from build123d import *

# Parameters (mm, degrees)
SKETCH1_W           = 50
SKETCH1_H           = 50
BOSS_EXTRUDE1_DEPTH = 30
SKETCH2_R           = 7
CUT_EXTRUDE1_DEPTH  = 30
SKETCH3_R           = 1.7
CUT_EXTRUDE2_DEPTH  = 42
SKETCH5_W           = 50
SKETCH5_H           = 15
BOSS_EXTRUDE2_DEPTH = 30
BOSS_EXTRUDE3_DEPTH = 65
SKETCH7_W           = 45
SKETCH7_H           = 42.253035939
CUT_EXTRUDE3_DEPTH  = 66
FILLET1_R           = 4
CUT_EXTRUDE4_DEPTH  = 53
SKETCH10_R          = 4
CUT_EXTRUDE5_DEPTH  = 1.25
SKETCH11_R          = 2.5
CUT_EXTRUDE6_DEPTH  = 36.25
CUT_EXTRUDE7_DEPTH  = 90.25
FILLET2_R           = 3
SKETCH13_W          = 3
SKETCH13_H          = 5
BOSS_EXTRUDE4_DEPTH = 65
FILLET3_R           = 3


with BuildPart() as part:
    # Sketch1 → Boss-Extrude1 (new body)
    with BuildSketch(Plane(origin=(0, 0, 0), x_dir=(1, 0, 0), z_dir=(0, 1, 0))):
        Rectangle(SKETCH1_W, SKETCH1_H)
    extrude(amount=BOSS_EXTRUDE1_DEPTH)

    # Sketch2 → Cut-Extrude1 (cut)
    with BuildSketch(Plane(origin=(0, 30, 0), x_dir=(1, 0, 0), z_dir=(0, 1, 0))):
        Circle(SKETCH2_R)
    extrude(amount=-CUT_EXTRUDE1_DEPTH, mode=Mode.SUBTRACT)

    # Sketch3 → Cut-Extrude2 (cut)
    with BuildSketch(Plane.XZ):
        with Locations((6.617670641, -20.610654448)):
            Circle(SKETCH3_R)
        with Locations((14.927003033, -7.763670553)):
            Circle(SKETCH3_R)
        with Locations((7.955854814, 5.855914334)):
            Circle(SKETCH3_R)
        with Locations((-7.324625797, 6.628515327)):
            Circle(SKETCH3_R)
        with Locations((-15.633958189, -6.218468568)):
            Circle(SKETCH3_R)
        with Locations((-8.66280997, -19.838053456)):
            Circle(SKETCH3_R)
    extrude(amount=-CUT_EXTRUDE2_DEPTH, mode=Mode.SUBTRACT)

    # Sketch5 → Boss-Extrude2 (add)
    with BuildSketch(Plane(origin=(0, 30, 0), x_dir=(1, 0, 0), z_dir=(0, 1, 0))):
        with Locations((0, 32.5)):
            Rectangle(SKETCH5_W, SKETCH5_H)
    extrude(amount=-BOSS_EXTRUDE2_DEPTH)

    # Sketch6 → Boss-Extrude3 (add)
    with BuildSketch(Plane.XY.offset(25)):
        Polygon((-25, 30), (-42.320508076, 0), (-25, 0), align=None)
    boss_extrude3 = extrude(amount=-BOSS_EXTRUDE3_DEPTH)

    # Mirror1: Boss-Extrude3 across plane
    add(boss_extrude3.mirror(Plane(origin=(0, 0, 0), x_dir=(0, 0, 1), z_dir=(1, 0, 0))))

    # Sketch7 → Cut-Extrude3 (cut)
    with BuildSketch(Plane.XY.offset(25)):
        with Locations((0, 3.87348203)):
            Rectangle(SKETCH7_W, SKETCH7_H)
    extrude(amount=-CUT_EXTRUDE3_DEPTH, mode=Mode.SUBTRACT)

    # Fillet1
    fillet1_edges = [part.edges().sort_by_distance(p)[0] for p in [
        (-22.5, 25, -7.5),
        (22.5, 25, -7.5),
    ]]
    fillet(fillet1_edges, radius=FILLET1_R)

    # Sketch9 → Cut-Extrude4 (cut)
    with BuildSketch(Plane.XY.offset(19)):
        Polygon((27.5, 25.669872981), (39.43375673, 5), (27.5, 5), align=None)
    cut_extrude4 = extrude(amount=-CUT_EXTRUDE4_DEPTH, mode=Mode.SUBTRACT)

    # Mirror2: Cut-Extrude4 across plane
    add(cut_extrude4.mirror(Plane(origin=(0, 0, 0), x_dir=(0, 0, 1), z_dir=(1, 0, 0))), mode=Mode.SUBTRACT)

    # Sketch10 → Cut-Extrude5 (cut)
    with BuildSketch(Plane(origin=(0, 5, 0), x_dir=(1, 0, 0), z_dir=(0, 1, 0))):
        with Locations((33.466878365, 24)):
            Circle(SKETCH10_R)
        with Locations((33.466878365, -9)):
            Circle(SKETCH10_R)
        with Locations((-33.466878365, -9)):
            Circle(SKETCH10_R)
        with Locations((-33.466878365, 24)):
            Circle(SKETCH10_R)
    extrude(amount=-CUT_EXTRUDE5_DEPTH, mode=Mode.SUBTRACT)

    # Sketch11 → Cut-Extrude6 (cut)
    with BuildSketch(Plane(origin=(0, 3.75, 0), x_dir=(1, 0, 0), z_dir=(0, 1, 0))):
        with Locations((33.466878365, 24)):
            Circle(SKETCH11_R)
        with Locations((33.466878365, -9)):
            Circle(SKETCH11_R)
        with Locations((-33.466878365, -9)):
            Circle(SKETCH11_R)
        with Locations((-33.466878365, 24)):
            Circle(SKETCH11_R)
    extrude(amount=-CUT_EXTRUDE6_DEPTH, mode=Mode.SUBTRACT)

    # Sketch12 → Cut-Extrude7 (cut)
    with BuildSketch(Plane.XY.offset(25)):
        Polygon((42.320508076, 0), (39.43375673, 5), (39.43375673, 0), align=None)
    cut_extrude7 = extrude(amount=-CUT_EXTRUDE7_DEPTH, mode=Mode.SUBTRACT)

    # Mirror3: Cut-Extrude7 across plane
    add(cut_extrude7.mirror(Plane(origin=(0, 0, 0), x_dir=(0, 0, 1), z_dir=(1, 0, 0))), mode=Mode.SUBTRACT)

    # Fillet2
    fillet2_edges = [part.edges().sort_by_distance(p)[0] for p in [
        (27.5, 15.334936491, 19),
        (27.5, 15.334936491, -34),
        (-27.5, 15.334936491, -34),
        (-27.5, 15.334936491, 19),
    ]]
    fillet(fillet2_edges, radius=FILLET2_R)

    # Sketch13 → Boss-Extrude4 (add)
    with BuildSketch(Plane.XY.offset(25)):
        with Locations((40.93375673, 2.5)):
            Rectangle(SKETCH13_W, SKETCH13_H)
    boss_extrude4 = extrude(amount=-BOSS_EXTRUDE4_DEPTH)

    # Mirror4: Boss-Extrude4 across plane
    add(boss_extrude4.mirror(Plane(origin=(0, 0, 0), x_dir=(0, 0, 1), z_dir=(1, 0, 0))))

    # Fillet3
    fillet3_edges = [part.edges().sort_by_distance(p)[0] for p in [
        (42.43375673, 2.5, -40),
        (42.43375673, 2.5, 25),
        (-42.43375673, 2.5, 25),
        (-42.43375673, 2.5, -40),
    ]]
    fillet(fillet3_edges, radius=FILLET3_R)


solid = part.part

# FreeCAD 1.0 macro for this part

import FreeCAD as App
import Part
import Sketcher
from FreeCAD import Vector
Q = App.Units.Quantity


def edges_at(feature, points):
    """Names of the edges that pass closest to the given points."""
    edges = feature.Shape.Edges
    near = lambda p: min(range(len(edges)), key=lambda i: edges[i].distToShape(Part.Vertex(*p))[0])
    return sorted({f"Edge{near(p) + 1}" for p in points})

doc = App.newDocument("Part")
body = doc.addObject("PartDesign::Body", "Body")

sketch1 = doc.addObject("Sketcher::SketchObject", "Sketch")
body.addObject(sketch1)
sketch1.AttachmentSupport = (doc.XZ_Plane, [""])
sketch1.MapMode = "FlatFace"
sketch1.addGeometry([
    Part.LineSegment(Vector(-25, -25, 0), Vector(-25, 25, 0)),
    Part.LineSegment(Vector(-25, 25, 0), Vector(25, 25, 0)),
    Part.LineSegment(Vector(25, 25, 0), Vector(25, -25, 0)),
    Part.LineSegment(Vector(25, -25, 0), Vector(-25, -25, 0)),
], False)
sketch1.addConstraint([
    Sketcher.Constraint("Coincident", 0, 2, 1, 1),
    Sketcher.Constraint("Coincident", 1, 2, 2, 1),
    Sketcher.Constraint("Coincident", 2, 2, 3, 1),
    Sketcher.Constraint("Coincident", 3, 2, 0, 1),
    Sketcher.Constraint("Vertical", 0),
    Sketcher.Constraint("Horizontal", 1),
    Sketcher.Constraint("Vertical", 2),
    Sketcher.Constraint("Horizontal", 3),
    Sketcher.Constraint("Symmetric", 0, 2, 2, 2, -1, 1),
    Sketcher.Constraint("Equal", 3, 0),
    Sketcher.Constraint("DistanceX", 1, 1, 1, 2, 50.0),
])
pad1 = doc.addObject("PartDesign::Pad", "Pad")
body.addObject(pad1)
pad1.Profile = sketch1
pad1.Length = 30
pad1.Reversed = True

sketch2 = doc.addObject("Sketcher::SketchObject", "Sketch001")
body.addObject(sketch2)
sketch2.AttachmentSupport = (doc.XZ_Plane, [""])
sketch2.MapMode = "FlatFace"
sketch2.AttachmentOffset = App.Placement(Vector(0, 0, -30), App.Rotation())
sketch2.addGeometry(Part.Circle(Vector(0, 0, 0), Vector(0, 0, 1), 7), False)
sketch2.addConstraint([
    Sketcher.Constraint("Coincident", 0, 3, -1, 1),
    Sketcher.Constraint("Diameter", 0, 14.0),
])
pocket1 = doc.addObject("PartDesign::Pocket", "Pocket")
body.addObject(pocket1)
pocket1.Profile = sketch2
pocket1.Length = 30
pocket1.Reversed = True

sketch3 = doc.addObject("Sketcher::SketchObject", "Sketch002")
body.addObject(sketch3)
sketch3.AttachmentSupport = (doc.XZ_Plane, [""])
sketch3.MapMode = "FlatFace"
sketch3.addGeometry([
    Part.Circle(Vector(6.617671, -20.610654, 0), Vector(0, 0, 1), 1.7),
    Part.Circle(Vector(14.927003, -7.763671, 0), Vector(0, 0, 1), 1.7),
    Part.Circle(Vector(7.955855, 5.855914, 0), Vector(0, 0, 1), 1.7),
    Part.Circle(Vector(-7.324626, 6.628515, 0), Vector(0, 0, 1), 1.7),
    Part.Circle(Vector(-15.633958, -6.218469, 0), Vector(0, 0, 1), 1.7),
    Part.Circle(Vector(-8.66281, -19.838053, 0), Vector(0, 0, 1), 1.7),
], False)
sketch3.addConstraint([
    Sketcher.Constraint("Equal", 0, 1),
    Sketcher.Constraint("Equal", 1, 2),
    Sketcher.Constraint("Equal", 2, 3),
    Sketcher.Constraint("Equal", 3, 4),
    Sketcher.Constraint("Equal", 4, 5),
    Sketcher.Constraint("Diameter", 0, 3.4),
    Sketcher.Constraint("DistanceY", 2, 3, 3, 3, 0.772601),
    Sketcher.Constraint("DistanceY", 1, 3, 4, 3, 1.545202),
    Sketcher.Constraint("DistanceY", 0, 3, 5, 3, 0.772601),
    Sketcher.Constraint("DistanceX", -1, 1, 0, 3, 6.617671),
    Sketcher.Constraint("DistanceY", 1, 3, -1, 1, 7.763671),
    Sketcher.Constraint("DistanceX", 4, 3, -1, 1, 15.633958),
    Sketcher.Constraint("DistanceX", 5, 3, -1, 1, 8.66281),
    Sketcher.Constraint("DistanceX", 2, 3, 1, 3, 6.971148),
    Sketcher.Constraint("DistanceY", 0, 3, 2, 3, 26.466569),
    Sketcher.Constraint("DistanceX", 3, 3, 2, 3, 15.280481),
    Sketcher.Constraint("DistanceX", 4, 3, 1, 3, 30.560961),
    Sketcher.Constraint("DistanceY", 0, 3, -1, 1, 20.610654),
])
pocket2 = doc.addObject("PartDesign::Pocket", "Pocket001")
body.addObject(pocket2)
pocket2.Profile = sketch3
pocket2.Length = 42

sketch4 = doc.addObject("Sketcher::SketchObject", "Sketch003")
body.addObject(sketch4)
sketch4.AttachmentSupport = (doc.XZ_Plane, [""])
sketch4.MapMode = "FlatFace"
sketch4.AttachmentOffset = App.Placement(Vector(0, 0, -30), App.Rotation())
sketch4.addGeometry([
    Part.LineSegment(Vector(-25, -40, 0), Vector(-25, -25, 0)),
    Part.LineSegment(Vector(-25, -25, 0), Vector(25, -25, 0)),
    Part.LineSegment(Vector(25, -25, 0), Vector(25, -40, 0)),
    Part.LineSegment(Vector(25, -40, 0), Vector(-25, -40, 0)),
], False)
sketch4.addConstraint([
    Sketcher.Constraint("Coincident", 0, 2, 1, 1),
    Sketcher.Constraint("Coincident", 1, 2, 2, 1),
    Sketcher.Constraint("Coincident", 2, 2, 3, 1),
    Sketcher.Constraint("Coincident", 3, 2, 0, 1),
    Sketcher.Constraint("Vertical", 0),
    Sketcher.Constraint("Horizontal", 1),
    Sketcher.Constraint("Vertical", 2),
    Sketcher.Constraint("Horizontal", 3),
    Sketcher.Constraint("DistanceX", 1, 1, 1, 2, 50.0),
    Sketcher.Constraint("DistanceY", 0, 1, 0, 2, 15.0),
    Sketcher.Constraint("DistanceX", 0, 2, -1, 1, 25.0),
    Sketcher.Constraint("DistanceY", 0, 2, -1, 1, 25.0),
])
pad2 = doc.addObject("PartDesign::Pad", "Pad001")
body.addObject(pad2)
pad2.Profile = sketch4
pad2.Length = 30

sketch5 = doc.addObject("Sketcher::SketchObject", "Sketch004")
body.addObject(sketch5)
sketch5.AttachmentSupport = (doc.XY_Plane, [""])
sketch5.MapMode = "FlatFace"
sketch5.AttachmentOffset = App.Placement(Vector(0, 0, 25), App.Rotation())
sketch5.addGeometry([
    Part.LineSegment(Vector(-25, 30, 0), Vector(-42.320508, 0, 0)),
    Part.LineSegment(Vector(-42.320508, 0, 0), Vector(-25, 0, 0)),
    Part.LineSegment(Vector(-25, 0, 0), Vector(-25, 30, 0)),
], False)
sketch5.addConstraint([
    Sketcher.Constraint("Coincident", 0, 2, 1, 1),
    Sketcher.Constraint("Coincident", 1, 2, 2, 1),
    Sketcher.Constraint("Coincident", 2, 2, 0, 1),
    Sketcher.Constraint("Horizontal", 1),
    Sketcher.Constraint("Vertical", 2),
    Sketcher.Constraint("PointOnObject", 0, 2, -1),
    Sketcher.Constraint("DistanceY", 2, 1, 2, 2, 30.0),
    Sketcher.Constraint("Angle", 0, Q("-120 deg")),
    Sketcher.Constraint("DistanceX", 1, 2, -1, 1, 25.0),
])
pad3 = doc.addObject("PartDesign::Pad", "Pad002")
body.addObject(pad3)
pad3.Profile = sketch5
pad3.Length = 65
pad3.Reversed = True
doc.recompute()

mirrored = doc.addObject("PartDesign::Mirrored", "Mirrored")
body.addObject(mirrored)
mirrored.Originals = [pad3]
mirrored.MirrorPlane = (doc.YZ_Plane, [""])
body.Tip = mirrored

sketch6 = doc.addObject("Sketcher::SketchObject", "Sketch005")
body.addObject(sketch6)
sketch6.AttachmentSupport = (doc.XY_Plane, [""])
sketch6.MapMode = "FlatFace"
sketch6.AttachmentOffset = App.Placement(Vector(0, 0, 25), App.Rotation())
sketch6.addGeometry([
    Part.LineSegment(Vector(-22.5, 25, 0), Vector(-22.5, -17.253036, 0)),
    Part.LineSegment(Vector(-22.5, -17.253036, 0), Vector(22.5, -17.253036, 0)),
    Part.LineSegment(Vector(22.5, -17.253036, 0), Vector(22.5, 25, 0)),
    Part.LineSegment(Vector(22.5, 25, 0), Vector(-22.5, 25, 0)),
], False)
sketch6.addConstraint([
    Sketcher.Constraint("Coincident", 0, 2, 1, 1),
    Sketcher.Constraint("Coincident", 1, 2, 2, 1),
    Sketcher.Constraint("Coincident", 2, 2, 3, 1),
    Sketcher.Constraint("Coincident", 3, 2, 0, 1),
    Sketcher.Constraint("Vertical", 0),
    Sketcher.Constraint("Horizontal", 1),
    Sketcher.Constraint("Vertical", 2),
    Sketcher.Constraint("Horizontal", 3),
    Sketcher.Constraint("DistanceX", 1, 1, 1, 2, 45.0),
    Sketcher.Constraint("DistanceY", -1, 1, 2, 2, 25.0),
    Sketcher.Constraint("DistanceX", 0, 2, -1, 1, 22.5),
    Sketcher.Constraint("DistanceY", 0, 2, 0, 1, 42.253036),
])
pocket3 = doc.addObject("PartDesign::Pocket", "Pocket002")
body.addObject(pocket3)
pocket3.Profile = sketch6
pocket3.Length = 66
doc.recompute()

fillet = doc.addObject("PartDesign::Fillet", "Fillet")
body.addObject(fillet)
fillet.Base = (pocket3, edges_at(pocket3, [(-22.5, 25, -7.5), (22.5, 25, -7.5)]))
fillet.Radius = 4

sketch7 = doc.addObject("Sketcher::SketchObject", "Sketch006")
body.addObject(sketch7)
sketch7.AttachmentSupport = (doc.XY_Plane, [""])
sketch7.MapMode = "FlatFace"
sketch7.AttachmentOffset = App.Placement(Vector(0, 0, 19), App.Rotation())
sketch7.addGeometry([
    Part.LineSegment(Vector(39.433757, 5, 0), Vector(27.5, 25.669873, 0)),
    Part.LineSegment(Vector(27.5, 25.669873, 0), Vector(27.5, 5, 0)),
    Part.LineSegment(Vector(27.5, 5, 0), Vector(39.433757, 5, 0)),
], False)
sketch7.addConstraint([
    Sketcher.Constraint("Coincident", 0, 2, 1, 1),
    Sketcher.Constraint("Coincident", 1, 2, 2, 1),
    Sketcher.Constraint("Coincident", 2, 2, 0, 1),
    Sketcher.Constraint("Vertical", 1),
    Sketcher.Constraint("Horizontal", 2),
    Sketcher.Constraint("Angle", 0, Q("120 deg")),
    Sketcher.Constraint("DistanceY", -1, 1, 1, 2, 5.0),
    Sketcher.Constraint("DistanceX", -1, 1, 0, 2, 27.5),
    Sketcher.Constraint("DistanceX", 2, 1, 2, 2, 11.933757),
])
pocket4 = doc.addObject("PartDesign::Pocket", "Pocket003")
body.addObject(pocket4)
pocket4.Profile = sketch7
pocket4.Length = 53
doc.recompute()

mirrored2 = doc.addObject("PartDesign::Mirrored", "Mirrored001")
body.addObject(mirrored2)
mirrored2.Originals = [pocket4]
mirrored2.MirrorPlane = (doc.YZ_Plane, [""])
body.Tip = mirrored2

sketch8 = doc.addObject("Sketcher::SketchObject", "Sketch007")
body.addObject(sketch8)
sketch8.AttachmentSupport = (doc.XZ_Plane, [""])
sketch8.MapMode = "FlatFace"
sketch8.AttachmentOffset = App.Placement(Vector(0, 0, -5), App.Rotation())
sketch8.addGeometry([
    Part.Circle(Vector(33.466878, -24, 0), Vector(0, 0, 1), 4),
    Part.Circle(Vector(33.466878, 9, 0), Vector(0, 0, 1), 4),
    Part.Circle(Vector(-33.466878, 9, 0), Vector(0, 0, 1), 4),
    Part.Circle(Vector(-33.466878, -24, 0), Vector(0, 0, 1), 4),
], False)
sketch8.addConstraint([
    Sketcher.Constraint("Equal", 0, 1),
    Sketcher.Constraint("Equal", 1, 2),
    Sketcher.Constraint("Equal", 2, 3),
    Sketcher.Constraint("Symmetric", 1, 3, 2, 3, -2),
    Sketcher.Constraint("Symmetric", 0, 3, 3, 3, -2),
    Sketcher.Constraint("Vertical", 0, 3, 1, 3),
    Sketcher.Constraint("Diameter", 0, 8.0),
    Sketcher.Constraint("DistanceY", 0, 3, -1, 1, 24.0),
    Sketcher.Constraint("DistanceY", -1, 1, 1, 3, 9.0),
    Sketcher.Constraint("DistanceX", -1, 1, 0, 3, 33.466878),
])
pocket5 = doc.addObject("PartDesign::Pocket", "Pocket004")
body.addObject(pocket5)
pocket5.Profile = sketch8
pocket5.Length = 1.25
pocket5.Reversed = True

sketch9 = doc.addObject("Sketcher::SketchObject", "Sketch008")
body.addObject(sketch9)
sketch9.AttachmentSupport = (doc.XZ_Plane, [""])
sketch9.MapMode = "FlatFace"
sketch9.AttachmentOffset = App.Placement(Vector(0, 0, -3.75), App.Rotation())
sketch9.addGeometry([
    Part.Circle(Vector(33.466878, -24, 0), Vector(0, 0, 1), 2.5),
    Part.Circle(Vector(33.466878, 9, 0), Vector(0, 0, 1), 2.5),
    Part.Circle(Vector(-33.466878, 9, 0), Vector(0, 0, 1), 2.5),
    Part.Circle(Vector(-33.466878, -24, 0), Vector(0, 0, 1), 2.5),
], False)
sketch9.addConstraint([
    Sketcher.Constraint("Equal", 0, 1),
    Sketcher.Constraint("Equal", 1, 2),
    Sketcher.Constraint("Equal", 2, 3),
    Sketcher.Constraint("Symmetric", 1, 3, 2, 3, -2),
    Sketcher.Constraint("Symmetric", 0, 3, 3, 3, -2),
    Sketcher.Constraint("Vertical", 0, 3, 1, 3),
    Sketcher.Constraint("Diameter", 0, 5.0),
    Sketcher.Constraint("DistanceY", 0, 3, -1, 1, 24.0),
    Sketcher.Constraint("DistanceY", -1, 1, 1, 3, 9.0),
    Sketcher.Constraint("DistanceX", -1, 1, 0, 3, 33.466878),
])
pocket6 = doc.addObject("PartDesign::Pocket", "Pocket005")
body.addObject(pocket6)
pocket6.Profile = sketch9
pocket6.Length = 36.25
pocket6.Reversed = True

sketch10 = doc.addObject("Sketcher::SketchObject", "Sketch009")
body.addObject(sketch10)
sketch10.AttachmentSupport = (doc.XY_Plane, [""])
sketch10.MapMode = "FlatFace"
sketch10.AttachmentOffset = App.Placement(Vector(0, 0, 25), App.Rotation())
sketch10.addGeometry([
    Part.LineSegment(Vector(42.320508, 0, 0), Vector(39.433757, 5, 0)),
    Part.LineSegment(Vector(39.433757, 5, 0), Vector(39.433757, 0, 0)),
    Part.LineSegment(Vector(39.433757, 0, 0), Vector(42.320508, 0, 0)),
], False)
sketch10.addConstraint([
    Sketcher.Constraint("Coincident", 0, 2, 1, 1),
    Sketcher.Constraint("Coincident", 1, 2, 2, 1),
    Sketcher.Constraint("Coincident", 2, 2, 0, 1),
    Sketcher.Constraint("Vertical", 1),
    Sketcher.Constraint("Horizontal", 2),
    Sketcher.Constraint("PointOnObject", 1, 2, -1),
    Sketcher.Constraint("DistanceY", 1, 2, 1, 1, 5.0),
    Sketcher.Constraint("Angle", 0, Q("120 deg")),
    Sketcher.Constraint("DistanceX", -1, 1, 2, 2, 42.320508),
])
pocket7 = doc.addObject("PartDesign::Pocket", "Pocket006")
body.addObject(pocket7)
pocket7.Profile = sketch10
pocket7.Length = 90.25
doc.recompute()

mirrored3 = doc.addObject("PartDesign::Mirrored", "Mirrored002")
body.addObject(mirrored3)
mirrored3.Originals = [pocket7]
mirrored3.MirrorPlane = (doc.YZ_Plane, [""])
body.Tip = mirrored3
doc.recompute()

fillet2 = doc.addObject("PartDesign::Fillet", "Fillet001")
body.addObject(fillet2)
fillet2.Base = (mirrored3, edges_at(mirrored3, [
    (27.5, 15.335, 19),
    (27.5, 15.335, -34),
    (-27.5, 15.335, -34),
    (-27.5, 15.335, 19),
]))
fillet2.Radius = 3

sketch11 = doc.addObject("Sketcher::SketchObject", "Sketch010")
body.addObject(sketch11)
sketch11.AttachmentSupport = (doc.XY_Plane, [""])
sketch11.MapMode = "FlatFace"
sketch11.AttachmentOffset = App.Placement(Vector(0, 0, 25), App.Rotation())
sketch11.addGeometry([
    Part.LineSegment(Vector(39.433757, 5, 0), Vector(39.433757, 0, 0)),
    Part.LineSegment(Vector(39.433757, 0, 0), Vector(42.433757, 0, 0)),
    Part.LineSegment(Vector(42.433757, 0, 0), Vector(42.433757, 5, 0)),
    Part.LineSegment(Vector(42.433757, 5, 0), Vector(39.433757, 5, 0)),
], False)
sketch11.addConstraint([
    Sketcher.Constraint("Coincident", 0, 2, 1, 1),
    Sketcher.Constraint("Coincident", 1, 2, 2, 1),
    Sketcher.Constraint("Coincident", 2, 2, 3, 1),
    Sketcher.Constraint("Coincident", 3, 2, 0, 1),
    Sketcher.Constraint("Vertical", 0),
    Sketcher.Constraint("Horizontal", 1),
    Sketcher.Constraint("Vertical", 2),
    Sketcher.Constraint("Horizontal", 3),
    Sketcher.Constraint("PointOnObject", 0, 2, -1),
    Sketcher.Constraint("DistanceX", 1, 1, 1, 2, 3.0),
    Sketcher.Constraint("DistanceY", 0, 2, 0, 1, 5.0),
    Sketcher.Constraint("DistanceX", -1, 1, 0, 2, 39.433757),
])
pad4 = doc.addObject("PartDesign::Pad", "Pad003")
body.addObject(pad4)
pad4.Profile = sketch11
pad4.Length = 65
pad4.Reversed = True
doc.recompute()

mirrored4 = doc.addObject("PartDesign::Mirrored", "Mirrored003")
body.addObject(mirrored4)
mirrored4.Originals = [pad4]
mirrored4.MirrorPlane = (doc.YZ_Plane, [""])
body.Tip = mirrored4
doc.recompute()

fillet3 = doc.addObject("PartDesign::Fillet", "Fillet002")
body.addObject(fillet3)
fillet3.Base = (mirrored4, edges_at(mirrored4, [
    (42.434, 2.5, -40),
    (42.434, 2.5, 25),
    (-42.434, 2.5, 25),
    (-42.434, 2.5, -40),
]))
fillet3.Radius = 3

doc.recompute()
